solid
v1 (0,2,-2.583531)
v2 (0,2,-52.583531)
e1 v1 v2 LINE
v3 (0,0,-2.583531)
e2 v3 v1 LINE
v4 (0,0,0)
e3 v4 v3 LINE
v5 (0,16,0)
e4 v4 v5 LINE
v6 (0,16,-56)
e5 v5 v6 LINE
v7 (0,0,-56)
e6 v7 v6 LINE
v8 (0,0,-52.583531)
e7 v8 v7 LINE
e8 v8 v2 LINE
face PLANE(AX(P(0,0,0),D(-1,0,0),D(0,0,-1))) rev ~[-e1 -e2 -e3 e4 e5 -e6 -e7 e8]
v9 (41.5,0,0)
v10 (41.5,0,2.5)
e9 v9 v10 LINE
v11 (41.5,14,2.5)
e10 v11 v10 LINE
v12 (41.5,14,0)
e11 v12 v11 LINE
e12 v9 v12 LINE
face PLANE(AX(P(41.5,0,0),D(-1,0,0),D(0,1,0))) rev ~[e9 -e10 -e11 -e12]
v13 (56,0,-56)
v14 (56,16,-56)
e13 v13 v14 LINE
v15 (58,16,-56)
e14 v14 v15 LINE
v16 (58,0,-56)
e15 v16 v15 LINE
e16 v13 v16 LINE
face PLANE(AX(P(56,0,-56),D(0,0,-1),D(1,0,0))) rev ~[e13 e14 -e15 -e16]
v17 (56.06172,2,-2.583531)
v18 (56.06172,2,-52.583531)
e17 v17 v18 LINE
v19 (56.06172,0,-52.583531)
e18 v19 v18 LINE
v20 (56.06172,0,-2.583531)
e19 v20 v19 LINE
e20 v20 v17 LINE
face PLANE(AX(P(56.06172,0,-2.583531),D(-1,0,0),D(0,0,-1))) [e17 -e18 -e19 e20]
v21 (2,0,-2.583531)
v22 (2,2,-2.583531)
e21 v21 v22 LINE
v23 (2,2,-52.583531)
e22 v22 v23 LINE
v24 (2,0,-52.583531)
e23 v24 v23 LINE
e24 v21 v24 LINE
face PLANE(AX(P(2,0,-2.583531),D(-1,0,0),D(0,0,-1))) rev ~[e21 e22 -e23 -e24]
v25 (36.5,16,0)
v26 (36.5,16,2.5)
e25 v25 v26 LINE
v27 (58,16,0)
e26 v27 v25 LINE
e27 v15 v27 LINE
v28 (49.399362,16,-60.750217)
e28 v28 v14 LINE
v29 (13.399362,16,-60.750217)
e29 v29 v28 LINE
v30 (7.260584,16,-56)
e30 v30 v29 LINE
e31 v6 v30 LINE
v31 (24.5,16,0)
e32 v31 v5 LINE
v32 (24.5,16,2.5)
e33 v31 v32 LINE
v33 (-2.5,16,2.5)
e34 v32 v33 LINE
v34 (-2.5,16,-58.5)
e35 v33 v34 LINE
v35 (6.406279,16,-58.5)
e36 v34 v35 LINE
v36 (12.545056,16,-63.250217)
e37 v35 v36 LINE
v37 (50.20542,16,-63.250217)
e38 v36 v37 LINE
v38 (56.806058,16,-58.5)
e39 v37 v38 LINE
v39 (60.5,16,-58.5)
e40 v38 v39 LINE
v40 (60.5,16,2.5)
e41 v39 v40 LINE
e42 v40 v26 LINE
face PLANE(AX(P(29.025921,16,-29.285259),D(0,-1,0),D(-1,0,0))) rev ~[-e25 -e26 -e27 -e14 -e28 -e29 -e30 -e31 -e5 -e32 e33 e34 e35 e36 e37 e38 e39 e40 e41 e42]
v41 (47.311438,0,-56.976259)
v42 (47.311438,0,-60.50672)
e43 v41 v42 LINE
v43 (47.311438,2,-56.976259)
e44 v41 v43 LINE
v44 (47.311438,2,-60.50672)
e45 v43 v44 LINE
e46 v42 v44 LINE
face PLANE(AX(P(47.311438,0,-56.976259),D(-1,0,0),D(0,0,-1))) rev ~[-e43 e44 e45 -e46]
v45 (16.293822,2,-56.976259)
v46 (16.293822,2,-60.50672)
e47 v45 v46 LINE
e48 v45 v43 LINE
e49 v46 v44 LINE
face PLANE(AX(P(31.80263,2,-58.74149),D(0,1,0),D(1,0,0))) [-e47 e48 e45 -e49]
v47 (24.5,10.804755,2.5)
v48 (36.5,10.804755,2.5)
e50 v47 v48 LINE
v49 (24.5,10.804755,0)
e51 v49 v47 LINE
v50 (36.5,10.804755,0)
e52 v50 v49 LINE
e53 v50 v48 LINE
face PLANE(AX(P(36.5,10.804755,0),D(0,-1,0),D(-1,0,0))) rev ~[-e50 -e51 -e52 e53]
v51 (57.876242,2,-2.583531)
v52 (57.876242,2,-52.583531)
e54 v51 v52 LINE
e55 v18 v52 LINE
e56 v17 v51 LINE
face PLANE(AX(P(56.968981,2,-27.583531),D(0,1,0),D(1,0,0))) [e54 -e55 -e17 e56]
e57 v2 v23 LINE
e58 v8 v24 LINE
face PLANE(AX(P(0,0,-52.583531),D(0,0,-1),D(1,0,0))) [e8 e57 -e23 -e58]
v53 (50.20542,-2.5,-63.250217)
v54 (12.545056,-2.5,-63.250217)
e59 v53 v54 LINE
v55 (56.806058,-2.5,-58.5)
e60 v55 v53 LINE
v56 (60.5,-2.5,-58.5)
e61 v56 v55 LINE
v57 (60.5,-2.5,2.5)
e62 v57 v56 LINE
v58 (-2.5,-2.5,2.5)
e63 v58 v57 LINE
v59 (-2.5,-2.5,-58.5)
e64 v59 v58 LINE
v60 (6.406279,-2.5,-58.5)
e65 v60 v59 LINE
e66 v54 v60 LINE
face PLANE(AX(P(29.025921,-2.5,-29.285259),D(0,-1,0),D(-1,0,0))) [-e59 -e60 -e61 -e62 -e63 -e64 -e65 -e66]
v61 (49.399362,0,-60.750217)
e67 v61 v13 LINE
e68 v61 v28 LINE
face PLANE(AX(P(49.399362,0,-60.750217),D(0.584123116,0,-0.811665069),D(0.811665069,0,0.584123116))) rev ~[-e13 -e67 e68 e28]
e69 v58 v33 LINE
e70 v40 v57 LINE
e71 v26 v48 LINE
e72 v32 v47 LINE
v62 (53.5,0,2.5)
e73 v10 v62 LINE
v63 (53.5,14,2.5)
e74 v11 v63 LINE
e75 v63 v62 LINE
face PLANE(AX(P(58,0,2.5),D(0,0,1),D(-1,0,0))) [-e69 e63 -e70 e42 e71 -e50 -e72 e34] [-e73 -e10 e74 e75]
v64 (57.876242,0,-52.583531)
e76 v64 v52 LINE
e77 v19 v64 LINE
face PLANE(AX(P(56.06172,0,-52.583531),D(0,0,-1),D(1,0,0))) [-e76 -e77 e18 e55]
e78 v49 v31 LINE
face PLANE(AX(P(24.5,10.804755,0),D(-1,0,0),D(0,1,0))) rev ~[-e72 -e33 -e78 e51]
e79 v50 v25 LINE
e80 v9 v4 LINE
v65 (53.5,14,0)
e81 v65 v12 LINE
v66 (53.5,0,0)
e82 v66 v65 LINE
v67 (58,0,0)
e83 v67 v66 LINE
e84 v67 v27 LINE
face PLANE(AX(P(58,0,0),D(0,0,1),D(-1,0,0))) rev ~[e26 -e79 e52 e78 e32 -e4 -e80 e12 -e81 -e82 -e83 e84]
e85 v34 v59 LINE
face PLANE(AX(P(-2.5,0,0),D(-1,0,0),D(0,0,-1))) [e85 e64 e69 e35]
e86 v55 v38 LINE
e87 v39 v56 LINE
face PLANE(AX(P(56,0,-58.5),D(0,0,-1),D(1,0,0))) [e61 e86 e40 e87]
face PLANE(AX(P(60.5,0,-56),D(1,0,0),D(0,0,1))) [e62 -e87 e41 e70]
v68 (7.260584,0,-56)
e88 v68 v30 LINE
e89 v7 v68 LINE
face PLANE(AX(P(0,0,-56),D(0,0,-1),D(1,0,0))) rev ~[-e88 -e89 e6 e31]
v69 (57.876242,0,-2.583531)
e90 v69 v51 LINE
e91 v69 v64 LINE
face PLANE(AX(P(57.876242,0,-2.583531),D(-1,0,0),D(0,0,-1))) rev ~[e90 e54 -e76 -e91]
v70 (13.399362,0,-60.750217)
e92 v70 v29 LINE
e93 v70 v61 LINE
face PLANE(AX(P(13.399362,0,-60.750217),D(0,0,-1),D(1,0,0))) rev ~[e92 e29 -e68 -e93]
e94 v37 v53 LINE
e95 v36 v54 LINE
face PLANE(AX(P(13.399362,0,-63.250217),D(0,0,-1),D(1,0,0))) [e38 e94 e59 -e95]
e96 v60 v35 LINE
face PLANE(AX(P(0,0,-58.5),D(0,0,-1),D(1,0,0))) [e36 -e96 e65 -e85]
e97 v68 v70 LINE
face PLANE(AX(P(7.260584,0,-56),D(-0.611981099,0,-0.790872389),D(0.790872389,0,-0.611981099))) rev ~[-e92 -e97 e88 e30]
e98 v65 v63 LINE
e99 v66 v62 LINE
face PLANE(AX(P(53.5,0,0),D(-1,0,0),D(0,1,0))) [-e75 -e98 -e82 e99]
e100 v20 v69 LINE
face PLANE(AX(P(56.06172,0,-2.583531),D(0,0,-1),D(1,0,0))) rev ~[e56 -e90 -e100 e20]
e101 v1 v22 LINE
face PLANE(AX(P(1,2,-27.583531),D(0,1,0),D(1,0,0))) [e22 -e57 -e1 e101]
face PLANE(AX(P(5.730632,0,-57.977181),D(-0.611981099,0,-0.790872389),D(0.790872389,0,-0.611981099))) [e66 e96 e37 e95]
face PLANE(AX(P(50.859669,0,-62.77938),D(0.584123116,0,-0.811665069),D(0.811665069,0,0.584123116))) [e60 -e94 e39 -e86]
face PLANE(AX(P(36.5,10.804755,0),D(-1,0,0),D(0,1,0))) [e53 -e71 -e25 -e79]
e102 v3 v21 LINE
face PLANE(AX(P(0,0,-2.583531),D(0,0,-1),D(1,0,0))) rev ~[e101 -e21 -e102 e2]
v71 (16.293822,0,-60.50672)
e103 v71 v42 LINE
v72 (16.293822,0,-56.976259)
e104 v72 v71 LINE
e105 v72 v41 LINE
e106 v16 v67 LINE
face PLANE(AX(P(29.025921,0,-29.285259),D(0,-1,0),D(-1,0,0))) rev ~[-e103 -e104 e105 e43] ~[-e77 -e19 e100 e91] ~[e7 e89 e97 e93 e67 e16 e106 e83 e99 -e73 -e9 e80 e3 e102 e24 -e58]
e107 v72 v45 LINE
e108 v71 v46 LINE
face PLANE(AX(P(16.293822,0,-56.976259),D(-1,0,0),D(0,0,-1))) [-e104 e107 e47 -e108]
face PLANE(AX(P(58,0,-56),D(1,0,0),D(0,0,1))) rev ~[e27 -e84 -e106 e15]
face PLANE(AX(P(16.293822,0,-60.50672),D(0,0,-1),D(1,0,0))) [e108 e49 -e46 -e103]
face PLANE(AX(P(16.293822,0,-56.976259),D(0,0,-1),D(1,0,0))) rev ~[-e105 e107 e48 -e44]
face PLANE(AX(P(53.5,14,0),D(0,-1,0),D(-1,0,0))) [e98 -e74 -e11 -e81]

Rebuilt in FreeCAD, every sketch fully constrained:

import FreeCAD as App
import Part
import Sketcher

V = App.Vector


def faces_at(feature, points):
    """Names of the faces that lie closest to the given points."""
    faces = feature.Shape.Faces
    near = lambda p: min(range(len(faces)), key=lambda i: faces[i].distToShape(Part.Vertex(*p))[0])
    return sorted({f"Face{near(p) + 1}" for p in points})

doc = App.newDocument("Part")
params = doc.addObject("Spreadsheet::Sheet", "Params")
for row, (alias, value) in enumerate([
    ("sketch1_width", "58 mm"),
    ("sketch1_width2", "2 mm"),
    ("sketch1_width3", "36 mm"),
    ("sketch1_height", "56 mm"),
    ("pad1_length", "16 mm"),
    ("thickness_wall", "2.5 mm"),
    ("sketch2_width", "12 mm"),
    ("sketch2_height", "14 mm"),
    ("pocket1_length", "4 mm"),
    ("sketch3_width", "2 mm"),
    ("sketch3_height", "50 mm"),
    ("pad2_length", "2 mm"),
    ("pad3_length", "2 mm"),
], start=1):
    params.set(f"A{row}", alias)
    params.set(f"B{row}", "=" + value)
    params.setAlias(f"B{row}", alias)

body = doc.addObject("PartDesign::Body", "Body")

# Sketch on XZ plane
sketch1 = body.newObject("Sketcher::SketchObject", "Sketch")
sketch1.AttachmentSupport = (doc.getObject("XZ_Plane"), [""])
sketch1.MapMode = "FlatFace"
sketch1.addGeometry([
    Part.LineSegment(V(0, -56, 0), V(0, 0, 0)),  # 0
    Part.LineSegment(V(0, 0, 0), V(58, 0, 0)),  # 1
    Part.LineSegment(V(58, 0, 0), V(58, -56, 0)),  # 2
    Part.LineSegment(V(58, -56, 0), V(56, -56, 0)),  # 3
    Part.LineSegment(V(56, -56, 0), V(49.399362, -60.750217, 0)),  # 4
    Part.LineSegment(V(49.399362, -60.750217, 0), V(13.399362, -60.750217, 0)),  # 5
    Part.LineSegment(V(13.399362, -60.750217, 0), V(7.260584, -56, 0)),  # 6
    Part.LineSegment(V(7.260584, -56, 0), V(0, -56, 0)),  # 7
], False)
sketch1.addConstraint([
    Sketcher.Constraint("Coincident", 0, 2, 1, 1),
    Sketcher.Constraint("Coincident", 1, 2, 2, 1),
    Sketcher.Constraint("Coincident", 2, 2, 3, 1),
    Sketcher.Constraint("Coincident", 3, 2, 4, 1),
    Sketcher.Constraint("Coincident", 4, 2, 5, 1),
    Sketcher.Constraint("Coincident", 5, 2, 6, 1),
    Sketcher.Constraint("Coincident", 6, 2, 7, 1),
    Sketcher.Constraint("Coincident", 7, 2, 0, 1),
    Sketcher.Constraint("Vertical", 0),
    Sketcher.Constraint("Horizontal", 1),
    Sketcher.Constraint("Vertical", 2),
    Sketcher.Constraint("Horizontal", 3),
    Sketcher.Constraint("Horizontal", 5),
    Sketcher.Constraint("Horizontal", 7),
    Sketcher.Constraint("Coincident", 0, 2, -1, 1),
    Sketcher.Constraint("Horizontal", 3, 2, 6, 2),
    Sketcher.Constraint("DistanceX", 1, 1, 1, 2, 58.0),
    Sketcher.Constraint("DistanceX", 3, 2, 3, 1, 2.0),
    Sketcher.Constraint("DistanceX", 5, 2, 5, 1, 36.0),
    Sketcher.Constraint("DistanceY", 0, 1, 0, 2, 56.0),
    Sketcher.Constraint("Distance", 4, 8.132219),
    Sketcher.Constraint("DistanceX", 7, 2, 7, 1, 7.260584),
    Sketcher.Constraint("DistanceX", -1, 1, 4, 2, 49.399362),
])
sketch1.setExpression("Constraints[16]", "Params.sketch1_width")
sketch1.setExpression("Constraints[17]", "Params.sketch1_width2")
sketch1.setExpression("Constraints[18]", "Params.sketch1_width3")
sketch1.setExpression("Constraints[19]", "Params.sketch1_height")
pad1 = body.newObject("PartDesign::Pad", "Pad")
pad1.Profile = sketch1
pad1.setExpression("Length", "Params.pad1_length")
pad1.Reversed = True
doc.recompute()

thickness = body.newObject("PartDesign::Thickness", "Thickness")
thickness.Base = (pad1, faces_at(pad1, [(29, 16, -30.375)]))
thickness.setExpression("Value", "Params.thickness_wall")
thickness.Reversed = False
thickness.Join = "Intersection"

# Sketch on XY plane
sketch2 = body.newObject("Sketcher::SketchObject", "Sketch001")
sketch2.AttachmentSupport = (doc.getObject("XY_Plane"), [""])
sketch2.MapMode = "FlatFace"
sketch2.addGeometry([
    Part.LineSegment(V(53.5, 14, 0), V(53.5, 0, 0)),  # 0
    Part.LineSegment(V(53.5, 0, 0), V(41.5, 0, 0)),  # 1
    Part.LineSegment(V(41.5, 0, 0), V(41.5, 14, 0)),  # 2
    Part.LineSegment(V(41.5, 14, 0), V(53.5, 14, 0)),  # 3
    Part.LineSegment(V(36.5, 16, 0), V(36.5, 10.804755, 0)),  # 4
    Part.LineSegment(V(36.5, 10.804755, 0), V(24.5, 10.804755, 0)),  # 5
    Part.LineSegment(V(24.5, 10.804755, 0), V(24.5, 16, 0)),  # 6
    Part.LineSegment(V(24.5, 16, 0), V(36.5, 16, 0)),  # 7
], False)
sketch2.addConstraint([
    Sketcher.Constraint("Coincident", 0, 2, 1, 1),
    Sketcher.Constraint("Coincident", 1, 2, 2, 1),
    Sketcher.Constraint("Coincident", 2, 2, 3, 1),
    Sketcher.Constraint("Coincident", 3, 2, 0, 1),
    Sketcher.Constraint("Coincident", 4, 2, 5, 1),
    Sketcher.Constraint("Coincident", 5, 2, 6, 1),
    Sketcher.Constraint("Coincident", 6, 2, 7, 1),
    Sketcher.Constraint("Coincident", 7, 2, 4, 1),
    Sketcher.Constraint("Vertical", 0),
    Sketcher.Constraint("Horizontal", 1),
    Sketcher.Constraint("Vertical", 2),
    Sketcher.Constraint("Horizontal", 3),
    Sketcher.Constraint("Vertical", 4),
    Sketcher.Constraint("Horizontal", 5),
    Sketcher.Constraint("Vertical", 6),
    Sketcher.Constraint("Horizontal", 7),
    Sketcher.Constraint("PointOnObject", 0, 2, -1),
    Sketcher.Constraint("Equal", 3, 5),
    Sketcher.Constraint("DistanceX", 1, 2, 1, 1, 12.0),
    Sketcher.Constraint("DistanceY", 0, 2, 0, 1, 14.0),
    Sketcher.Constraint("DistanceY", -1, 1, 6, 2, 16.0),
    Sketcher.Constraint("DistanceX", 4, 2, 2, 2, 5.0),
    Sketcher.Constraint("DistanceX", -1, 1, 0, 2, 53.5),
    Sketcher.Constraint("DistanceY", 4, 2, 4, 1, 5.195245),
])
sketch2.setExpression("Constraints[18]", "Params.sketch2_width")
sketch2.setExpression("Constraints[19]", "Params.sketch2_height")
pocket1 = body.newObject("PartDesign::Pocket", "Pocket")
pocket1.Profile = sketch2
pocket1.setExpression("Length", "Params.pocket1_length")
pocket1.Reversed = True

# Sketch on XZ plane
sketch3 = body.newObject("Sketcher::SketchObject", "Sketch002")
sketch3.AttachmentSupport = (doc.getObject("XZ_Plane"), [""])
sketch3.MapMode = "FlatFace"
sketch3.addGeometry([
    Part.LineSegment(V(0, -52.583531, 0), V(0, -2.583531, 0)),  # 0
    Part.LineSegment(V(0, -2.583531, 0), V(2, -2.583531, 0)),  # 1
    Part.LineSegment(V(2, -2.583531, 0), V(2, -52.583531, 0)),  # 2
    Part.LineSegment(V(2, -52.583531, 0), V(0, -52.583531, 0)),  # 3
    Part.LineSegment(V(56.06172, -52.583531, 0), V(56.06172, -2.583531, 0)),  # 4
    Part.LineSegment(V(56.06172, -2.583531, 0), V(57.876242, -2.583531, 0)),  # 5
    Part.LineSegment(V(57.876242, -2.583531, 0), V(57.876242, -52.583531, 0)),  # 6
    Part.LineSegment(V(57.876242, -52.583531, 0), V(56.06172, -52.583531, 0)),  # 7
], False)
sketch3.addConstraint([
    Sketcher.Constraint("Coincident", 0, 2, 1, 1),
    Sketcher.Constraint("Coincident", 1, 2, 2, 1),
    Sketcher.Constraint("Coincident", 2, 2, 3, 1),
    Sketcher.Constraint("Coincident", 3, 2, 0, 1),
    Sketcher.Constraint("Coincident", 4, 2, 5, 1),
    Sketcher.Constraint("Coincident", 5, 2, 6, 1),
    Sketcher.Constraint("Coincident", 6, 2, 7, 1),
    Sketcher.Constraint("Coincident", 7, 2, 4, 1),
    Sketcher.Constraint("Vertical", 0),
    Sketcher.Constraint("Horizontal", 1),
    Sketcher.Constraint("Vertical", 2),
    Sketcher.Constraint("Horizontal", 3),
    Sketcher.Constraint("Vertical", 4),
    Sketcher.Constraint("Horizontal", 5),
    Sketcher.Constraint("Vertical", 6),
    Sketcher.Constraint("Horizontal", 7),
    Sketcher.Constraint("PointOnObject", 0, 2, -2),
    Sketcher.Constraint("Horizontal", 1, 2, 4, 2),
    Sketcher.Constraint("Horizontal", 3, 2, 6, 2),
    Sketcher.Constraint("DistanceX", 1, 1, 1, 2, 2.0),
    Sketcher.Constraint("DistanceY", 0, 1, 0, 2, 50.0),
    Sketcher.Constraint("DistanceX", 5, 1, 5, 2, 1.814523),
    Sketcher.Constraint("DistanceY", 0, 2, -1, 1, 2.583531),
    Sketcher.Constraint("DistanceX", -1, 1, 4, 2, 56.06172),
])
sketch3.setExpression("Constraints[19]", "Params.sketch3_width")
sketch3.setExpression("Constraints[20]", "Params.sketch3_height")
pad2 = body.newObject("PartDesign::Pad", "Pad001")
pad2.Profile = sketch3
pad2.setExpression("Length", "Params.pad2_length")
pad2.Reversed = True

# Sketch on XZ plane
sketch4 = body.newObject("Sketcher::SketchObject", "Sketch003")
sketch4.AttachmentSupport = (doc.getObject("XZ_Plane"), [""])
sketch4.MapMode = "FlatFace"
sketch4.addGeometry([
    Part.LineSegment(V(16.293822, -60.50672, 0), V(16.293822, -56.976259, 0)),
    Part.LineSegment(V(16.293822, -56.976259, 0), V(47.311438, -56.976259, 0)),
    Part.LineSegment(V(47.311438, -56.976259, 0), V(47.311438, -60.50672, 0)),
    Part.LineSegment(V(47.311438, -60.50672, 0), V(16.293822, -60.50672, 0)),
], False)
sketch4.addConstraint([
    Sketcher.Constraint("Coincident", 0, 2, 1, 1),
    Sketcher.Constraint("Coincident", 1, 2, 2, 1),
    Sketcher.Constraint("Coincident", 2, 2, 3, 1),
    Sketcher.Constraint("Coincident", 3, 2, 0, 1),
    Sketcher.Constraint("Vertical", 0),
    Sketcher.Constraint("Horizontal", 1),
    Sketcher.Constraint("Vertical", 2),
    Sketcher.Constraint("Horizontal", 3),
    Sketcher.Constraint("DistanceY", 0, 1, 0, 2, 3.53046),
    Sketcher.Constraint("DistanceX", 1, 1, 1, 2, 31.017616),
    Sketcher.Constraint("DistanceX", -1, 1, 0, 2, 16.293822),
    Sketcher.Constraint("DistanceY", 0, 2, -1, 1, 56.976259),
])
pad3 = body.newObject("PartDesign::Pad", "Pad002")
pad3.Profile = sketch4
pad3.setExpression("Length", "Params.pad3_length")
pad3.Reversed = True

doc.recompute()
